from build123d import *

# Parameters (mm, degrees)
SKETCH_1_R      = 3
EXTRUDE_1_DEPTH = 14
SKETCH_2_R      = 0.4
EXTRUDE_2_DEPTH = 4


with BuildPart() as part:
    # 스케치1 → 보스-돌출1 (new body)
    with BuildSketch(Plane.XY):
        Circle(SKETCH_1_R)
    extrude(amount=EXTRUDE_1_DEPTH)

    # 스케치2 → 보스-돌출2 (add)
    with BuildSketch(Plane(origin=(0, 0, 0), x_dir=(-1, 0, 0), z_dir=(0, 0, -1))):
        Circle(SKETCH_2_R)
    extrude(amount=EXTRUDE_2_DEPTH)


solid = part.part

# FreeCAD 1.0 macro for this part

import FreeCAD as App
import Part
import Sketcher

V = App.Vector
Q = App.Units.Quantity

doc = App.newDocument("Part")
body = doc.addObject("PartDesign::Body", "Body")

sketch1 = body.newObject("Sketcher::SketchObject", "Sketch")
sketch1.AttachmentSupport = (doc.getObject("XY_Plane"), [""])
sketch1.MapMode = "FlatFace"
sketch1.addGeometry(Part.Circle(V(0, 0, 0), V(0, 0, 1), 3), False)
sketch1.addConstraint(Sketcher.Constraint("Coincident", 0, 3, -1, 1))
sketch1.addConstraint(Sketcher.Constraint("Diameter", 0, Q("6 mm")))
pad1 = body.newObject("PartDesign::Pad", "Pad")
pad1.Profile = sketch1
pad1.Length = 14

sketch2 = body.newObject("Sketcher::SketchObject", "Sketch001")
sketch2.AttachmentSupport = (doc.getObject("XY_Plane"), [""])
sketch2.MapMode = "FlatFace"
sketch2.addGeometry(Part.Circle(V(0, 0, 0), V(0, 0, 1), 0.4), False)
sketch2.addConstraint(Sketcher.Constraint("Coincident", 0, 3, -1, 1))
sketch2.addConstraint(Sketcher.Constraint("Diameter", 0, Q("0.8 mm")))
pad2 = body.newObject("PartDesign::Pad", "Pad001")
pad2.Profile = sketch2
pad2.Length = 4
pad2.Reversed = True

doc.recompute()
